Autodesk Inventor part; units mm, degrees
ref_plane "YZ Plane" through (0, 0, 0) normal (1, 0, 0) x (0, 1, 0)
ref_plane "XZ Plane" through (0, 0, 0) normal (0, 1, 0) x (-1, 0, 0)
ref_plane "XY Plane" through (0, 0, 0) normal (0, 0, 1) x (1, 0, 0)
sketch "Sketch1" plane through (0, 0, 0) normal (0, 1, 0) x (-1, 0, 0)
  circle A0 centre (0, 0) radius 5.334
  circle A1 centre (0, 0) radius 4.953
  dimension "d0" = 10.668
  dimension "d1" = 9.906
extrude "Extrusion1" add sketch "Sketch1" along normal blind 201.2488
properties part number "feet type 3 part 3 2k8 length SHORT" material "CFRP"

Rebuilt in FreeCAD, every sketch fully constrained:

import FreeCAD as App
import Part
import Sketcher
Q = App.Units.Quantity

doc = App.newDocument("Part")
body = doc.addObject("PartDesign::Body", "Body")

# Sketch on XZ plane
sketch1 = body.newObject("Sketcher::SketchObject", "Sketch")
sketch1.AttachmentSupport = (doc.getObject("XZ_Plane"), [""])
sketch1.MapMode = "FlatFace"
sketch1.addGeometry([
    Part.Circle(App.Vector(0, 0, 0), App.Vector(0, 0, 1), 5.3),
    Part.Circle(App.Vector(0, 0, 0), App.Vector(0, 0, 1), 5),
], False)
sketch1.addConstraint([
    Sketcher.Constraint("Coincident", 0, 3, -1, 1),
    Sketcher.Constraint("Coincident", 1, 3, -1, 1),
    Sketcher.Constraint("Diameter", 0, Q("0.42 in")),
    Sketcher.Constraint("Diameter", 1, Q("0.39 in")),
])
pad1 = body.newObject("PartDesign::Pad", "Pad")
pad1.Profile = sketch1
pad1.Length = 201.2488
pad1.Reversed = True

doc.recompute()
